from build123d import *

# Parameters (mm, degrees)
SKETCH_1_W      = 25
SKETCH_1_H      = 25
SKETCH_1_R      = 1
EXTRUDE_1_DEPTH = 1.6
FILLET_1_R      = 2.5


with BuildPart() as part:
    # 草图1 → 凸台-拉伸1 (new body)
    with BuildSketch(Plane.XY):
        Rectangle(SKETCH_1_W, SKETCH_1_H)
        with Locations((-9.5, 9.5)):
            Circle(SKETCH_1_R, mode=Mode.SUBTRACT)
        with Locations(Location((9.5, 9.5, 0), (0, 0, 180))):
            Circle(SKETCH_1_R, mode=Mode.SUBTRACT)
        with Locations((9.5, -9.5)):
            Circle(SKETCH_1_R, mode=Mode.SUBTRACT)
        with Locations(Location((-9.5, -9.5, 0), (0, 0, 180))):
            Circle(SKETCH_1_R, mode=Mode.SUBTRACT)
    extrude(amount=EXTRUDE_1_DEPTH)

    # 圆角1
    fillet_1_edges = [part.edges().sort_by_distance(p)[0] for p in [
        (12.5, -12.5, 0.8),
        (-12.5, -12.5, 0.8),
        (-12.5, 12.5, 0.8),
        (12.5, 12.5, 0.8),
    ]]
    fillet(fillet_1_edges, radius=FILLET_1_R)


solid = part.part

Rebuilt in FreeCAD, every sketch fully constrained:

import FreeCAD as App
import Part
import Sketcher
from FreeCAD import Vector


def edges_at(feature, points):
    """Names of the edges that pass closest to the given points."""
    edges = feature.Shape.Edges
    near = lambda p: min(range(len(edges)), key=lambda i: edges[i].distToShape(Part.Vertex(*p))[0])
    return sorted({f"Edge{near(p) + 1}" for p in points})


def add_polygon(sketch, points):
    """Adds a closed chain of lines whose ends are joined by coincident constraints."""
    first, n = sketch.GeometryCount, len(points)
    for a, b in zip(points, points[1:] + points[:1]):
        sketch.addGeometry(Part.LineSegment(App.Vector(*a, 0), App.Vector(*b, 0)), False)
    for i in range(n):
        sketch.addConstraint(Sketcher.Constraint("Coincident", first + i, 2, first + (i + 1) % n, 1))

doc = App.newDocument("Part")
body = doc.addObject("PartDesign::Body", "Body")

# Sketch on XY plane
sketch1 = doc.addObject("Sketcher::SketchObject", "Sketch")
body.addObject(sketch1)
sketch1.AttachmentSupport = (doc.XY_Plane, [""])
sketch1.MapMode = "FlatFace"
add_polygon(sketch1, [(-12.5, 12.5), (-12.5, -12.5), (12.5, -12.5), (12.5, 12.5)])  # lines 0-3
sketch1.addGeometry(Part.Circle(Vector(-9.5, -9.5, 0), Vector(0, 0, 1), 1), False)  # 4
sketch1.addGeometry(Part.Circle(Vector(9.5, -9.5, 0), Vector(0, 0, 1), 1), False)  # 5
sketch1.addGeometry(Part.Circle(Vector(-9.5, 9.5, 0), Vector(0, 0, 1), 1), False)  # 6
sketch1.addGeometry(Part.Circle(Vector(9.5, 9.5, 0), Vector(0, 0, 1), 1), False)  # 7
sketch1.addConstraint(Sketcher.Constraint("Vertical", 0))
sketch1.addConstraint(Sketcher.Constraint("Horizontal", 1))
sketch1.addConstraint(Sketcher.Constraint("Vertical", 2))
sketch1.addConstraint(Sketcher.Constraint("Horizontal", 3))
sketch1.addConstraint(Sketcher.Constraint("Equal", 4, 5))
sketch1.addConstraint(Sketcher.Constraint("Equal", 5, 6))
sketch1.addConstraint(Sketcher.Constraint("Equal", 6, 7))
sketch1.addConstraint(Sketcher.Constraint("Symmetric", 5, 3, 6, 3, -1, 1))
sketch1.addConstraint(Sketcher.Constraint("Symmetric", 4, 3, 7, 3, -1, 1))
sketch1.addConstraint(Sketcher.Constraint("Symmetric", 0, 2, 2, 2, -1, 1))
sketch1.addConstraint(Sketcher.Constraint("Symmetric", 4, 3, 5, 3, -2))
sketch1.addConstraint(Sketcher.Constraint("Equal", 3, 0))
sketch1.addConstraint(Sketcher.Constraint("Diameter", 4, 2.0))
sketch1.addConstraint(Sketcher.Constraint("DistanceX", 1, 1, 1, 2, 25.0))
sketch1.addConstraint(Sketcher.Constraint("DistanceX", 4, 3, 5, 3, 19.0))
sketch1.addConstraint(Sketcher.Constraint("DistanceY", 4, 3, 6, 3, 19.0))
pad1 = doc.addObject("PartDesign::Pad", "Pad")
body.addObject(pad1)
pad1.Profile = sketch1
pad1.Length = 1.6
doc.recompute()

fillet = doc.addObject("PartDesign::Fillet", "Fillet")
body.addObject(fillet)
fillet.Base = (pad1, edges_at(pad1, [
    (12.5, -12.5, 0.8),
    (-12.5, -12.5, 0.8),
    (-12.5, 12.5, 0.8),
    (12.5, 12.5, 0.8),
]))
fillet.Radius = 2.5

doc.recompute()
